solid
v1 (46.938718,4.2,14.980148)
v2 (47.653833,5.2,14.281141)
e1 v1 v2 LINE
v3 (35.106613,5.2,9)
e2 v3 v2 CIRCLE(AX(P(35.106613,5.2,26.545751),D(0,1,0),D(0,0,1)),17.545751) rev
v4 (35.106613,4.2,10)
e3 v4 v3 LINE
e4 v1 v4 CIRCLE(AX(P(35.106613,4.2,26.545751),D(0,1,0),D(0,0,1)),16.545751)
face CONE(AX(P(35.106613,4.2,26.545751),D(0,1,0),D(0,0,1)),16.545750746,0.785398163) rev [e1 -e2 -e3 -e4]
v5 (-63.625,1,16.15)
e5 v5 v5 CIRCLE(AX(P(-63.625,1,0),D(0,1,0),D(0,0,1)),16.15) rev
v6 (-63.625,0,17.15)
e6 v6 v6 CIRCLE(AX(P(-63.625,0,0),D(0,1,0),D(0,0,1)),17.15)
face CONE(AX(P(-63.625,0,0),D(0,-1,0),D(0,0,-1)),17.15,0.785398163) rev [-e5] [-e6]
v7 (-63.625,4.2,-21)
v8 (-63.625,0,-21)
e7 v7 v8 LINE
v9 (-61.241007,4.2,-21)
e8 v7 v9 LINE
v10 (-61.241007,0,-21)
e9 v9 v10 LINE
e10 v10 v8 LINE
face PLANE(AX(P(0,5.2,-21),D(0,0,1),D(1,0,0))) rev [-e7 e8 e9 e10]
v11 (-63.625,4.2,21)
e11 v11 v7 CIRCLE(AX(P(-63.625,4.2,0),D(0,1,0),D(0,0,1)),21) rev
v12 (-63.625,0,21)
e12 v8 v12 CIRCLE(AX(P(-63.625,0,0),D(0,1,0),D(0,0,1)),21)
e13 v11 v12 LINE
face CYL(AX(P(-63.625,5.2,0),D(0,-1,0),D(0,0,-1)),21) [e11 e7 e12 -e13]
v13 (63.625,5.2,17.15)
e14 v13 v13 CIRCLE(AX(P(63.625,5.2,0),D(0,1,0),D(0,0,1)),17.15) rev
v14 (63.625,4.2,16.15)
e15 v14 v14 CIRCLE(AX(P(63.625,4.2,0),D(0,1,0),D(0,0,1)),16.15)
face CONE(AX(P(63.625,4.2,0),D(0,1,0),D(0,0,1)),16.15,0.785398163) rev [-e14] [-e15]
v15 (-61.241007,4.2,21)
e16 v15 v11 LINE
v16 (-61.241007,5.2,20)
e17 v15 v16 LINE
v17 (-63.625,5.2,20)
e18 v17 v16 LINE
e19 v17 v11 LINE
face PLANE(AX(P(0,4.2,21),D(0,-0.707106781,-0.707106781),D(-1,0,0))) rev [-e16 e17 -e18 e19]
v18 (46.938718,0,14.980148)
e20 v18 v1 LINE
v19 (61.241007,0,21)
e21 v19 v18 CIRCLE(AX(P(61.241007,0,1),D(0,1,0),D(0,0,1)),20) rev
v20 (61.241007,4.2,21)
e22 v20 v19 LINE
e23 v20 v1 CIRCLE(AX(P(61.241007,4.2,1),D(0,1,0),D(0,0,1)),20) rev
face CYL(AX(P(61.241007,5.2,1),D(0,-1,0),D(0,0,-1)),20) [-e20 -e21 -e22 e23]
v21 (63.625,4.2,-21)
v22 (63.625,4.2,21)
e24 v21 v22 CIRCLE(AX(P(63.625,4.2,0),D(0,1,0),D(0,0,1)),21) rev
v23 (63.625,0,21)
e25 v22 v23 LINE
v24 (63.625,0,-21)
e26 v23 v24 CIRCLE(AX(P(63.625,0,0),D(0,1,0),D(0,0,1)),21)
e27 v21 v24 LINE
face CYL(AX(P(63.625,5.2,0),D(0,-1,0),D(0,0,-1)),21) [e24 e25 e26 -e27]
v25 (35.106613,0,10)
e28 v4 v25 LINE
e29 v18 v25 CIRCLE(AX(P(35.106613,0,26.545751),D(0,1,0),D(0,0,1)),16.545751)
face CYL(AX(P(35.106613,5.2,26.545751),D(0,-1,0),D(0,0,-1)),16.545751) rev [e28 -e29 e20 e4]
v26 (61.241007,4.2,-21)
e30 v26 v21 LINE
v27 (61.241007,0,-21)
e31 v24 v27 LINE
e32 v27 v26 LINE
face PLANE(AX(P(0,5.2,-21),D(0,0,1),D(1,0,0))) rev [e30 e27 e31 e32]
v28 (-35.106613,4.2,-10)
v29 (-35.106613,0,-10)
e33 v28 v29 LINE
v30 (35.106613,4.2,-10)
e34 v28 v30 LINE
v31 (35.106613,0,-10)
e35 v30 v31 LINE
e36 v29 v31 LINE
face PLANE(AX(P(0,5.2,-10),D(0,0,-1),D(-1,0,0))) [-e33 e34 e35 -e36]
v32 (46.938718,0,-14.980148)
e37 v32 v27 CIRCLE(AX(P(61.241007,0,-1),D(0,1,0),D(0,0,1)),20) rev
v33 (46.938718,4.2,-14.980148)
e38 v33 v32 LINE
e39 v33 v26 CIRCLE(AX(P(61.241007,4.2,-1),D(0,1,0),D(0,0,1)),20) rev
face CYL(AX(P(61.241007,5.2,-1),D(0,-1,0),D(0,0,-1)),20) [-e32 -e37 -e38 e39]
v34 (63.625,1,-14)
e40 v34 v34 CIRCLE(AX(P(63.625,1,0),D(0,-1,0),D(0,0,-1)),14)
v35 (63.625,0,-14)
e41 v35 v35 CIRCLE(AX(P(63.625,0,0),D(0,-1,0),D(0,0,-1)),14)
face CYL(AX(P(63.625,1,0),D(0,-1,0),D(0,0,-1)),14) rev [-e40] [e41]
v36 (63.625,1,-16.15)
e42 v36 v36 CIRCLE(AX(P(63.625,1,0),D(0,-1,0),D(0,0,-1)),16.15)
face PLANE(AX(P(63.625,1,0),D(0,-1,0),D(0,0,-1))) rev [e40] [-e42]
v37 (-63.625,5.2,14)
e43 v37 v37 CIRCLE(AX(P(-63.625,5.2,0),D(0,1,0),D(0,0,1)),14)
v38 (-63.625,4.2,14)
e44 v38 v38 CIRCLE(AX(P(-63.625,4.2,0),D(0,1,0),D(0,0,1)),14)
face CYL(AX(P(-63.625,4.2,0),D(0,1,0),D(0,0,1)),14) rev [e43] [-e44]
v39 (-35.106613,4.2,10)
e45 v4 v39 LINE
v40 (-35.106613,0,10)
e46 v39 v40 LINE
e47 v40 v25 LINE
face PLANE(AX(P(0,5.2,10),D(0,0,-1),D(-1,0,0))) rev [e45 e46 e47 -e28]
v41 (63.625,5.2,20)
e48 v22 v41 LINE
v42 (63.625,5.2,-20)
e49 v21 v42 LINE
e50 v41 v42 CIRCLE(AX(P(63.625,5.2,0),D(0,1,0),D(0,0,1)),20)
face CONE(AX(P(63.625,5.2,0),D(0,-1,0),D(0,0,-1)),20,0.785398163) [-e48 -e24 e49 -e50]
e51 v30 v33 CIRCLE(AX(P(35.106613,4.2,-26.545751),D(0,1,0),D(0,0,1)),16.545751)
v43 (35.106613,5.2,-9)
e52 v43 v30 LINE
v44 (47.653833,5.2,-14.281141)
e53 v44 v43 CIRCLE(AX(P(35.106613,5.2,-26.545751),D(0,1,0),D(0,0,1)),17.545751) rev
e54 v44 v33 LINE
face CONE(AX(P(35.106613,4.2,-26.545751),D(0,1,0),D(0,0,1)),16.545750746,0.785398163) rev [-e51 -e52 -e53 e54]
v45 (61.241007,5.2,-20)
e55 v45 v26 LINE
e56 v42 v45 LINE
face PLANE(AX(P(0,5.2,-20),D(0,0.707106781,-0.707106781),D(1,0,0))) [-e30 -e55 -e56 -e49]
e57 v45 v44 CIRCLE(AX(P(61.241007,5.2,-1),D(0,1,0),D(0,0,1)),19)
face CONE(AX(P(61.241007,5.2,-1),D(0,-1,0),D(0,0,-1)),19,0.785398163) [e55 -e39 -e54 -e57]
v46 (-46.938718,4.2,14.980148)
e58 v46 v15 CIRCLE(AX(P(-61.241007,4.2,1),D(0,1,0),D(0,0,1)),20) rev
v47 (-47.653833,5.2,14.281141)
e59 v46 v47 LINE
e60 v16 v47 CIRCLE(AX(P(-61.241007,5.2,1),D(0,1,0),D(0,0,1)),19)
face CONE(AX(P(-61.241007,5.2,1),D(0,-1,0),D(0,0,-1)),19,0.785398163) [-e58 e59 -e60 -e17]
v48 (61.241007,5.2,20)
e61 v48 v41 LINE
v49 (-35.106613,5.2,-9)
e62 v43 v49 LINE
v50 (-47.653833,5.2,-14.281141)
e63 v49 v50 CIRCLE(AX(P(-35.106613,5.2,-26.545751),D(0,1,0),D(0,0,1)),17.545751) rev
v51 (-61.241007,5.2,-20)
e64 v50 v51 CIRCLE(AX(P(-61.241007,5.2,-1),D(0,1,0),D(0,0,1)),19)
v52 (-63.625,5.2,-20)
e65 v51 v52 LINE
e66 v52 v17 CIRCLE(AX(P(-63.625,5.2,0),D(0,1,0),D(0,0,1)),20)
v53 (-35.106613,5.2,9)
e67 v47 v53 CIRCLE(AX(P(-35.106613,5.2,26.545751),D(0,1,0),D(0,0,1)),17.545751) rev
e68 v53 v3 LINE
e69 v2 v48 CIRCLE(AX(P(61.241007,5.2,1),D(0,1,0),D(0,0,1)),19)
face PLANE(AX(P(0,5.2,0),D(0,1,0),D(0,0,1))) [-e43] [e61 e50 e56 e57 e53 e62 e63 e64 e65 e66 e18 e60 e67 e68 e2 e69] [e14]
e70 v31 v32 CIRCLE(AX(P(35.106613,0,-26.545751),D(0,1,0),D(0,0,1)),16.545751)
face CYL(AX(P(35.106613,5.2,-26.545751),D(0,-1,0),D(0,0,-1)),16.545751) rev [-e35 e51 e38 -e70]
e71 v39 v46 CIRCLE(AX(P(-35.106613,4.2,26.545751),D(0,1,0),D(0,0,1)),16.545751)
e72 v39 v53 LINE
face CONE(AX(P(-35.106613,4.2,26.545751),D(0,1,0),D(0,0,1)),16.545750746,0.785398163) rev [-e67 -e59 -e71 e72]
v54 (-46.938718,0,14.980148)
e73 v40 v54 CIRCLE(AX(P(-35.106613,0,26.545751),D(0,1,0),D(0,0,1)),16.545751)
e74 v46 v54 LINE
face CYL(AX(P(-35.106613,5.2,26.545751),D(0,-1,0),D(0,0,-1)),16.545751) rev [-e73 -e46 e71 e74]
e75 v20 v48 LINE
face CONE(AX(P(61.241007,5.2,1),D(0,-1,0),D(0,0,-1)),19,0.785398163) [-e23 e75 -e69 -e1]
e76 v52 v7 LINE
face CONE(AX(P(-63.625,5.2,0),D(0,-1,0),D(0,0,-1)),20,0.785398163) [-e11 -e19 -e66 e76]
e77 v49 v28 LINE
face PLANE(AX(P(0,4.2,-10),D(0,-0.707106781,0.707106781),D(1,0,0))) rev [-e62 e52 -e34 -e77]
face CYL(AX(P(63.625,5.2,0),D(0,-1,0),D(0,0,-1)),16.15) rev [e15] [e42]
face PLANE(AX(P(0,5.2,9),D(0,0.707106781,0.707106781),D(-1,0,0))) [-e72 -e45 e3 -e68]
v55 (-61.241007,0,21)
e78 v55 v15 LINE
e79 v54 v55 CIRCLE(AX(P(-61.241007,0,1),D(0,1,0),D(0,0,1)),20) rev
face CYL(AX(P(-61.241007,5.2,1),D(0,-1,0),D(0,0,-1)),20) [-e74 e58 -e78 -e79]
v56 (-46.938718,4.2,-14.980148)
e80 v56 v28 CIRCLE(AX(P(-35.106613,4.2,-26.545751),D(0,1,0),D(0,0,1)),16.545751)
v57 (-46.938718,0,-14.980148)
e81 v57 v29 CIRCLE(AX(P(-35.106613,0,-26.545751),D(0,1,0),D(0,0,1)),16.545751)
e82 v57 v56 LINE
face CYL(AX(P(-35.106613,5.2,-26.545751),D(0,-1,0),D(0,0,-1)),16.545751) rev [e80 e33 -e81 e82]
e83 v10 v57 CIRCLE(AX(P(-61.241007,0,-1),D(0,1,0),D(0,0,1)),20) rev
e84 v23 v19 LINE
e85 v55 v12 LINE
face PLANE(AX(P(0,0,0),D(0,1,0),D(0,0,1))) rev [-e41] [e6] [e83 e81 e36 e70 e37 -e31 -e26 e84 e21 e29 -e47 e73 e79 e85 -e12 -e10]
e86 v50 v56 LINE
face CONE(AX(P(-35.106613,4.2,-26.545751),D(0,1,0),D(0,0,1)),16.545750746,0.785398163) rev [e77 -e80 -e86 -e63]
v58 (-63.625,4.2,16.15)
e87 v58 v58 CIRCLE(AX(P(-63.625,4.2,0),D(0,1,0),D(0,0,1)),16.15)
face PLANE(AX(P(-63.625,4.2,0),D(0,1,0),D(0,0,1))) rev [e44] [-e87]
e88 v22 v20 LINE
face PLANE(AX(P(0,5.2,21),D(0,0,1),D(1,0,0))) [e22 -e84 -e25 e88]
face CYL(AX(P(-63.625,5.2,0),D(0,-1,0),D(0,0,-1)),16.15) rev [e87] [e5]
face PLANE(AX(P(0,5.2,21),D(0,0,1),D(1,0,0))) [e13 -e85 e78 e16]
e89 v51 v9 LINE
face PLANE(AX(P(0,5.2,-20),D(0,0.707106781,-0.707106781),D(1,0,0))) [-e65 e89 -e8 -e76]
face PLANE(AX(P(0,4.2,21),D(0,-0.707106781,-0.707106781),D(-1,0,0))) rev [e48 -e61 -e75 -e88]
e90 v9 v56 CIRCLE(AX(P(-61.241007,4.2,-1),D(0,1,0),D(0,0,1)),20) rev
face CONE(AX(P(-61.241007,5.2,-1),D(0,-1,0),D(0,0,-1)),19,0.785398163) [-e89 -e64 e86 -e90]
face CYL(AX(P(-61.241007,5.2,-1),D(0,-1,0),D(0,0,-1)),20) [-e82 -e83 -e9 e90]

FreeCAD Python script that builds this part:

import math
import FreeCAD as App
import Part
import Sketcher
from FreeCAD import Vector


def edges_at(feature, points):
    """Names of the edges that pass closest to the given points."""
    edges = feature.Shape.Edges
    near = lambda p: min(range(len(edges)), key=lambda i: edges[i].distToShape(Part.Vertex(*p))[0])
    return sorted({f"Edge{near(p) + 1}" for p in points})

doc = App.newDocument("Part")
body = doc.addObject("PartDesign::Body", "Body")

sketch1 = doc.addObject("Sketcher::SketchObject", "Sketch")
body.addObject(sketch1)
sketch1.AttachmentSupport = (doc.XZ_Plane, [""])
sketch1.MapMode = "FlatFace"
sketch1.addGeometry([
    Part.LineSegment(Vector(51, 21, 0), Vector(64, 21, 0)),
    Part.ArcOfCircle(Part.Circle(Vector(64, 0, 0), Vector(0, 0, 1), 21), math.radians(-90), math.radians(90)),
    Part.LineSegment(Vector(64, -21, 0), Vector(51, -21, 0)),
    Part.ArcOfCircle(Part.Circle(Vector(35, -27, 0), Vector(0, 0, 1), 17), math.radians(20), math.radians(90)),
    Part.LineSegment(Vector(35, -10, 0), Vector(-35, -10, 0)),
    Part.ArcOfCircle(Part.Circle(Vector(-35, -27, 0), Vector(0, 0, 1), 17), math.radians(90), math.radians(160)),
    Part.LineSegment(Vector(-51, -21, 0), Vector(-64, -21, 0)),
    Part.ArcOfCircle(Part.Circle(Vector(-64, 0, 0), Vector(0, 0, 1), 21), math.radians(90), math.radians(270)),
    Part.LineSegment(Vector(-64, 21, 0), Vector(-51, 21, 0)),
    Part.ArcOfCircle(Part.Circle(Vector(-35, 27, 0), Vector(0, 0, 1), 17), math.radians(-160), math.radians(-90)),
    Part.LineSegment(Vector(-35, 10, 0), Vector(35, 10, 0)),
    Part.ArcOfCircle(Part.Circle(Vector(35, 27, 0), Vector(0, 0, 1), 17), math.radians(-90), math.radians(-20)),
    Part.Circle(Vector(-64, 0, 0), Vector(0, 0, 1), 16),
    Part.Circle(Vector(64, 0, 0), Vector(0, 0, 1), 16),
], False)
sketch1.addConstraint([
    Sketcher.Constraint("Tangent", 0, 2, 1, 2),
    Sketcher.Constraint("Tangent", 1, 1, 2, 1),
    Sketcher.Constraint("Coincident", 2, 2, 3, 1),
    Sketcher.Constraint("Tangent", 3, 2, 4, 1),
    Sketcher.Constraint("Tangent", 4, 2, 5, 1),
    Sketcher.Constraint("Coincident", 5, 2, 6, 1),
    Sketcher.Constraint("Tangent", 6, 2, 7, 2),
    Sketcher.Constraint("Tangent", 7, 1, 8, 1),
    Sketcher.Constraint("Coincident", 8, 2, 9, 1),
    Sketcher.Constraint("Tangent", 9, 2, 10, 1),
    Sketcher.Constraint("Tangent", 10, 2, 11, 1),
    Sketcher.Constraint("Coincident", 11, 2, 0, 1),
    Sketcher.Constraint("Horizontal", 0),
    Sketcher.Constraint("Horizontal", 2),
    Sketcher.Constraint("Horizontal", 4),
    Sketcher.Constraint("Horizontal", 6),
    Sketcher.Constraint("Horizontal", 8),
    Sketcher.Constraint("Horizontal", 10),
    Sketcher.Constraint("Coincident", 12, 3, 7, 3),
    Sketcher.Constraint("Coincident", 13, 3, 1, 3),
    Sketcher.Constraint("Equal", 3, 5),
    Sketcher.Constraint("Equal", 1, 7),
    Sketcher.Constraint("Equal", 5, 9),
    Sketcher.Constraint("Equal", 9, 11),
    Sketcher.Constraint("Equal", 12, 13),
    Sketcher.Constraint("Symmetric", 1, 3, 7, 3, -1, 1),
    Sketcher.Constraint("Symmetric", 3, 3, 9, 3, -1, 1),
    Sketcher.Constraint("Symmetric", 2, 2, 5, 2, -2),
    Sketcher.Constraint("Vertical", 3, 3, 11, 3),
    Sketcher.Constraint("Radius", 1, 21.0),
    Sketcher.Constraint("Diameter", 12, 32.3),
    Sketcher.Constraint("DistanceY", 3, 2, -1, 1, 10.0),
    Sketcher.Constraint("Radius", 3, 16.545751),
    Sketcher.Constraint("DistanceX", 7, 3, 1, 3, 127.25),
    Sketcher.Constraint("DistanceX", 0, 1, 0, 2, 12.92972),
])
pad1 = doc.addObject("PartDesign::Pad", "Pad")
body.addObject(pad1)
pad1.Profile = sketch1
pad1.Length = 5.2
pad1.Reversed = True
doc.recompute()

fillet = doc.addObject("PartDesign::Fillet", "Fillet")
body.addObject(fillet)
fillet.Base = (pad1, edges_at(pad1, [
    (-50.695, 2.6, 21),
    (-50.695, 2.6, -21),
    (50.695, 2.6, -21),
    (50.695, 2.6, 21),
]))
fillet.Radius = 20
doc.recompute()

chamfer = doc.addObject("PartDesign::Chamfer", "Chamfer")
body.addObject(chamfer)
chamfer.Base = (fillet, edges_at(fillet, [
    (62.433, 5.2, 21),
    (84.625, 5.2, 0),
    (62.433, 5.2, -21),
    (41.525, 5.2, -11.296),
    (0, 5.2, -10),
    (41.525, 5.2, 11.296),
    (-41.525, 5.2, -11.296),
    (-62.433, 5.2, -21),
    (-62.433, 5.2, 21),
    (-53.482, 5.2, 19.434),
    (-53.482, 5.2, -19.434),
    (-84.625, 5.2, 0),
    (53.482, 5.2, -19.434),
    (53.482, 5.2, 19.434),
    (-41.525, 5.2, 11.296),
    (0, 5.2, 10),
    (47.475, 5.2, 0),
]))
chamfer.Size = 1

sketch2 = doc.addObject("Sketcher::SketchObject", "Sketch001")
body.addObject(sketch2)
sketch2.AttachmentSupport = (doc.XZ_Plane, [""])
sketch2.MapMode = "FlatFace"
sketch2.addGeometry([
    Part.Circle(Vector(64, 0, 0), Vector(0, 0, 1), 19),
    Part.Circle(Vector(64, 0, 0), Vector(0, 0, 1), 14),
], False)
sketch2.addConstraint([
    Sketcher.Constraint("Coincident", 1, 3, 0, 3),
    Sketcher.Constraint("PointOnObject", 0, 3, -1),
    Sketcher.Constraint("Diameter", 1, 28.0),
    Sketcher.Constraint("Diameter", 0, 38.050485),
    Sketcher.Constraint("DistanceX", -1, 1, 0, 3, 63.625),
])
pad2 = doc.addObject("PartDesign::Pad", "Pad001")
body.addObject(pad2)
pad2.Profile = sketch2
pad2.Length = 1
pad2.Reversed = True

sketch3 = doc.addObject("Sketcher::SketchObject", "Sketch002")
body.addObject(sketch3)
sketch3.AttachmentSupport = (doc.XZ_Plane, [""])
sketch3.MapMode = "FlatFace"
sketch3.AttachmentOffset = App.Placement(Vector(0, 0, -5.2), App.Rotation())
sketch3.addGeometry([
    Part.Circle(Vector(-64, 0, 0), Vector(0, 0, 1), 19),
    Part.Circle(Vector(-64, 0, 0), Vector(0, 0, 1), 14),
], False)
sketch3.addConstraint([
    Sketcher.Constraint("Coincident", 1, 3, 0, 3),
    Sketcher.Constraint("PointOnObject", 0, 3, -1),
    Sketcher.Constraint("Diameter", 1, 28.0),
    Sketcher.Constraint("Diameter", 0, 37.430581),
    Sketcher.Constraint("DistanceX", 0, 3, -1, 1, 63.625),
])
pad3 = doc.addObject("PartDesign::Pad", "Pad002")
body.addObject(pad3)
pad3.Profile = sketch3
pad3.Length = 1
doc.recompute()

chamfer2 = doc.addObject("PartDesign::Chamfer", "Chamfer001")
body.addObject(chamfer2)
chamfer2.Base = (pad3, edges_at(pad3, [(-79.775, 0, 0)]))
chamfer2.Size = 1

doc.recompute()
